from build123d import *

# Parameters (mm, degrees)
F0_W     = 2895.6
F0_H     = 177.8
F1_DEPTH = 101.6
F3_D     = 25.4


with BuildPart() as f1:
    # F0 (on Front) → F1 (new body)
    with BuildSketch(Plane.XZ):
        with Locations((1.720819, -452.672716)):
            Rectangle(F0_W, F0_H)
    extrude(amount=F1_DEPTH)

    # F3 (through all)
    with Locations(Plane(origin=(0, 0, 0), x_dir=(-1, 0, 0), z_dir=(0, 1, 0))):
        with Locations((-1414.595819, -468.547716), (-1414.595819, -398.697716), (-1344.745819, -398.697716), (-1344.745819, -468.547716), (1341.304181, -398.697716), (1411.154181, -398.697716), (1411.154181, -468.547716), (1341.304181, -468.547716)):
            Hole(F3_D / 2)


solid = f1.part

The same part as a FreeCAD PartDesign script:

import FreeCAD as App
import Part
import Sketcher
Q = App.Units.Quantity

doc = App.newDocument("Part")
body = doc.addObject("PartDesign::Body", "Body")

# Sketch on XZ plane
sketch1 = body.newObject("Sketcher::SketchObject", "Sketch")
sketch1.AttachmentSupport = (doc.getObject("XZ_Plane"), [""])
sketch1.MapMode = "FlatFace"
sketch1.addGeometry([
    Part.LineSegment(App.Vector(-1446, -364, 0), App.Vector(-1446, -542, 0)),
    Part.LineSegment(App.Vector(-1446, -542, 0), App.Vector(1450, -542, 0)),
    Part.LineSegment(App.Vector(1450, -542, 0), App.Vector(1450, -364, 0)),
    Part.LineSegment(App.Vector(1450, -364, 0), App.Vector(-1446, -364, 0)),
], False)
sketch1.addConstraint([
    Sketcher.Constraint("Coincident", 0, 2, 1, 1),
    Sketcher.Constraint("Coincident", 1, 2, 2, 1),
    Sketcher.Constraint("Coincident", 2, 2, 3, 1),
    Sketcher.Constraint("Coincident", 3, 2, 0, 1),
    Sketcher.Constraint("Vertical", 0),
    Sketcher.Constraint("Horizontal", 1),
    Sketcher.Constraint("Vertical", 2),
    Sketcher.Constraint("Horizontal", 3),
    Sketcher.Constraint("DistanceX", 1, 1, 1, 2, Q("114 in")),
    Sketcher.Constraint("DistanceY", 0, 2, 0, 1, Q("7 in")),
    Sketcher.Constraint("DistanceX", 0, 2, -1, 1, 1446.079181),
    Sketcher.Constraint("DistanceY", 0, 2, -1, 1, 541.572716),
])
pad1 = body.newObject("PartDesign::Pad", "Pad")
pad1.Profile = sketch1
pad1.Length = Q("4 in")

# Sketch on XZ plane
sketch2 = body.newObject("Sketcher::SketchObject", "Sketch001")
sketch2.AttachmentSupport = (doc.getObject("XZ_Plane"), [""])
sketch2.MapMode = "FlatFace"
sketch2.addGeometry([
    Part.Circle(App.Vector(1415, -469, 0), App.Vector(0, 0, 1), 13),  # 0
    Part.Circle(App.Vector(1415, -399, 0), App.Vector(0, 0, 1), 13),  # 1
    Part.Circle(App.Vector(1345, -399, 0), App.Vector(0, 0, 1), 13),  # 2
    Part.Circle(App.Vector(1345, -469, 0), App.Vector(0, 0, 1), 13),  # 3
    Part.Circle(App.Vector(-1341, -399, 0), App.Vector(0, 0, 1), 13),  # 4
    Part.Circle(App.Vector(-1411, -399, 0), App.Vector(0, 0, 1), 13),  # 5
    Part.Circle(App.Vector(-1411, -469, 0), App.Vector(0, 0, 1), 13),  # 6
    Part.Circle(App.Vector(-1341, -469, 0), App.Vector(0, 0, 1), 13),  # 7
], False)
sketch2.addConstraint([
    Sketcher.Constraint("Equal", 0, 1),
    Sketcher.Constraint("Equal", 1, 2),
    Sketcher.Constraint("Equal", 2, 3),
    Sketcher.Constraint("Equal", 3, 4),
    Sketcher.Constraint("Equal", 4, 5),
    Sketcher.Constraint("Equal", 5, 6),
    Sketcher.Constraint("Equal", 6, 7),
    Sketcher.Constraint("Horizontal", 1, 3, 2, 3),
    Sketcher.Constraint("Horizontal", 0, 3, 3, 3),
    Sketcher.Constraint("Horizontal", 2, 3, 4, 3),
    Sketcher.Constraint("Horizontal", 4, 3, 5, 3),
    Sketcher.Constraint("Horizontal", 3, 3, 6, 3),
    Sketcher.Constraint("Horizontal", 6, 3, 7, 3),
    Sketcher.Constraint("Vertical", 0, 3, 1, 3),
    Sketcher.Constraint("Vertical", 2, 3, 3, 3),
    Sketcher.Constraint("Vertical", 5, 3, 6, 3),
    Sketcher.Constraint("Vertical", 4, 3, 7, 3),
    Sketcher.Constraint("Diameter", 0, Q("1 in")),
    Sketcher.Constraint("DistanceX", 4, 3, 1, 3, Q("108.5 in")),
    Sketcher.Constraint("DistanceX", 5, 3, 2, 3, Q("108.5 in")),
    Sketcher.Constraint("DistanceY", 0, 3, 1, 3, Q("2.75 in")),
    Sketcher.Constraint("DistanceX", 2, 3, 1, 3, Q("2.75 in")),
    Sketcher.Constraint("DistanceX", -1, 1, 0, 3, 1414.595819),
    Sketcher.Constraint("DistanceY", 0, 3, -1, 1, 468.547716),
])
doc.recompute()
hole = body.newObject("PartDesign::Hole", "Hole")
hole.Profile = sketch2
hole.ThreadType = "None"
hole.Diameter = Q("1 in")
hole.DepthType = "ThroughAll"
hole.Reversed = True

doc.recompute()
